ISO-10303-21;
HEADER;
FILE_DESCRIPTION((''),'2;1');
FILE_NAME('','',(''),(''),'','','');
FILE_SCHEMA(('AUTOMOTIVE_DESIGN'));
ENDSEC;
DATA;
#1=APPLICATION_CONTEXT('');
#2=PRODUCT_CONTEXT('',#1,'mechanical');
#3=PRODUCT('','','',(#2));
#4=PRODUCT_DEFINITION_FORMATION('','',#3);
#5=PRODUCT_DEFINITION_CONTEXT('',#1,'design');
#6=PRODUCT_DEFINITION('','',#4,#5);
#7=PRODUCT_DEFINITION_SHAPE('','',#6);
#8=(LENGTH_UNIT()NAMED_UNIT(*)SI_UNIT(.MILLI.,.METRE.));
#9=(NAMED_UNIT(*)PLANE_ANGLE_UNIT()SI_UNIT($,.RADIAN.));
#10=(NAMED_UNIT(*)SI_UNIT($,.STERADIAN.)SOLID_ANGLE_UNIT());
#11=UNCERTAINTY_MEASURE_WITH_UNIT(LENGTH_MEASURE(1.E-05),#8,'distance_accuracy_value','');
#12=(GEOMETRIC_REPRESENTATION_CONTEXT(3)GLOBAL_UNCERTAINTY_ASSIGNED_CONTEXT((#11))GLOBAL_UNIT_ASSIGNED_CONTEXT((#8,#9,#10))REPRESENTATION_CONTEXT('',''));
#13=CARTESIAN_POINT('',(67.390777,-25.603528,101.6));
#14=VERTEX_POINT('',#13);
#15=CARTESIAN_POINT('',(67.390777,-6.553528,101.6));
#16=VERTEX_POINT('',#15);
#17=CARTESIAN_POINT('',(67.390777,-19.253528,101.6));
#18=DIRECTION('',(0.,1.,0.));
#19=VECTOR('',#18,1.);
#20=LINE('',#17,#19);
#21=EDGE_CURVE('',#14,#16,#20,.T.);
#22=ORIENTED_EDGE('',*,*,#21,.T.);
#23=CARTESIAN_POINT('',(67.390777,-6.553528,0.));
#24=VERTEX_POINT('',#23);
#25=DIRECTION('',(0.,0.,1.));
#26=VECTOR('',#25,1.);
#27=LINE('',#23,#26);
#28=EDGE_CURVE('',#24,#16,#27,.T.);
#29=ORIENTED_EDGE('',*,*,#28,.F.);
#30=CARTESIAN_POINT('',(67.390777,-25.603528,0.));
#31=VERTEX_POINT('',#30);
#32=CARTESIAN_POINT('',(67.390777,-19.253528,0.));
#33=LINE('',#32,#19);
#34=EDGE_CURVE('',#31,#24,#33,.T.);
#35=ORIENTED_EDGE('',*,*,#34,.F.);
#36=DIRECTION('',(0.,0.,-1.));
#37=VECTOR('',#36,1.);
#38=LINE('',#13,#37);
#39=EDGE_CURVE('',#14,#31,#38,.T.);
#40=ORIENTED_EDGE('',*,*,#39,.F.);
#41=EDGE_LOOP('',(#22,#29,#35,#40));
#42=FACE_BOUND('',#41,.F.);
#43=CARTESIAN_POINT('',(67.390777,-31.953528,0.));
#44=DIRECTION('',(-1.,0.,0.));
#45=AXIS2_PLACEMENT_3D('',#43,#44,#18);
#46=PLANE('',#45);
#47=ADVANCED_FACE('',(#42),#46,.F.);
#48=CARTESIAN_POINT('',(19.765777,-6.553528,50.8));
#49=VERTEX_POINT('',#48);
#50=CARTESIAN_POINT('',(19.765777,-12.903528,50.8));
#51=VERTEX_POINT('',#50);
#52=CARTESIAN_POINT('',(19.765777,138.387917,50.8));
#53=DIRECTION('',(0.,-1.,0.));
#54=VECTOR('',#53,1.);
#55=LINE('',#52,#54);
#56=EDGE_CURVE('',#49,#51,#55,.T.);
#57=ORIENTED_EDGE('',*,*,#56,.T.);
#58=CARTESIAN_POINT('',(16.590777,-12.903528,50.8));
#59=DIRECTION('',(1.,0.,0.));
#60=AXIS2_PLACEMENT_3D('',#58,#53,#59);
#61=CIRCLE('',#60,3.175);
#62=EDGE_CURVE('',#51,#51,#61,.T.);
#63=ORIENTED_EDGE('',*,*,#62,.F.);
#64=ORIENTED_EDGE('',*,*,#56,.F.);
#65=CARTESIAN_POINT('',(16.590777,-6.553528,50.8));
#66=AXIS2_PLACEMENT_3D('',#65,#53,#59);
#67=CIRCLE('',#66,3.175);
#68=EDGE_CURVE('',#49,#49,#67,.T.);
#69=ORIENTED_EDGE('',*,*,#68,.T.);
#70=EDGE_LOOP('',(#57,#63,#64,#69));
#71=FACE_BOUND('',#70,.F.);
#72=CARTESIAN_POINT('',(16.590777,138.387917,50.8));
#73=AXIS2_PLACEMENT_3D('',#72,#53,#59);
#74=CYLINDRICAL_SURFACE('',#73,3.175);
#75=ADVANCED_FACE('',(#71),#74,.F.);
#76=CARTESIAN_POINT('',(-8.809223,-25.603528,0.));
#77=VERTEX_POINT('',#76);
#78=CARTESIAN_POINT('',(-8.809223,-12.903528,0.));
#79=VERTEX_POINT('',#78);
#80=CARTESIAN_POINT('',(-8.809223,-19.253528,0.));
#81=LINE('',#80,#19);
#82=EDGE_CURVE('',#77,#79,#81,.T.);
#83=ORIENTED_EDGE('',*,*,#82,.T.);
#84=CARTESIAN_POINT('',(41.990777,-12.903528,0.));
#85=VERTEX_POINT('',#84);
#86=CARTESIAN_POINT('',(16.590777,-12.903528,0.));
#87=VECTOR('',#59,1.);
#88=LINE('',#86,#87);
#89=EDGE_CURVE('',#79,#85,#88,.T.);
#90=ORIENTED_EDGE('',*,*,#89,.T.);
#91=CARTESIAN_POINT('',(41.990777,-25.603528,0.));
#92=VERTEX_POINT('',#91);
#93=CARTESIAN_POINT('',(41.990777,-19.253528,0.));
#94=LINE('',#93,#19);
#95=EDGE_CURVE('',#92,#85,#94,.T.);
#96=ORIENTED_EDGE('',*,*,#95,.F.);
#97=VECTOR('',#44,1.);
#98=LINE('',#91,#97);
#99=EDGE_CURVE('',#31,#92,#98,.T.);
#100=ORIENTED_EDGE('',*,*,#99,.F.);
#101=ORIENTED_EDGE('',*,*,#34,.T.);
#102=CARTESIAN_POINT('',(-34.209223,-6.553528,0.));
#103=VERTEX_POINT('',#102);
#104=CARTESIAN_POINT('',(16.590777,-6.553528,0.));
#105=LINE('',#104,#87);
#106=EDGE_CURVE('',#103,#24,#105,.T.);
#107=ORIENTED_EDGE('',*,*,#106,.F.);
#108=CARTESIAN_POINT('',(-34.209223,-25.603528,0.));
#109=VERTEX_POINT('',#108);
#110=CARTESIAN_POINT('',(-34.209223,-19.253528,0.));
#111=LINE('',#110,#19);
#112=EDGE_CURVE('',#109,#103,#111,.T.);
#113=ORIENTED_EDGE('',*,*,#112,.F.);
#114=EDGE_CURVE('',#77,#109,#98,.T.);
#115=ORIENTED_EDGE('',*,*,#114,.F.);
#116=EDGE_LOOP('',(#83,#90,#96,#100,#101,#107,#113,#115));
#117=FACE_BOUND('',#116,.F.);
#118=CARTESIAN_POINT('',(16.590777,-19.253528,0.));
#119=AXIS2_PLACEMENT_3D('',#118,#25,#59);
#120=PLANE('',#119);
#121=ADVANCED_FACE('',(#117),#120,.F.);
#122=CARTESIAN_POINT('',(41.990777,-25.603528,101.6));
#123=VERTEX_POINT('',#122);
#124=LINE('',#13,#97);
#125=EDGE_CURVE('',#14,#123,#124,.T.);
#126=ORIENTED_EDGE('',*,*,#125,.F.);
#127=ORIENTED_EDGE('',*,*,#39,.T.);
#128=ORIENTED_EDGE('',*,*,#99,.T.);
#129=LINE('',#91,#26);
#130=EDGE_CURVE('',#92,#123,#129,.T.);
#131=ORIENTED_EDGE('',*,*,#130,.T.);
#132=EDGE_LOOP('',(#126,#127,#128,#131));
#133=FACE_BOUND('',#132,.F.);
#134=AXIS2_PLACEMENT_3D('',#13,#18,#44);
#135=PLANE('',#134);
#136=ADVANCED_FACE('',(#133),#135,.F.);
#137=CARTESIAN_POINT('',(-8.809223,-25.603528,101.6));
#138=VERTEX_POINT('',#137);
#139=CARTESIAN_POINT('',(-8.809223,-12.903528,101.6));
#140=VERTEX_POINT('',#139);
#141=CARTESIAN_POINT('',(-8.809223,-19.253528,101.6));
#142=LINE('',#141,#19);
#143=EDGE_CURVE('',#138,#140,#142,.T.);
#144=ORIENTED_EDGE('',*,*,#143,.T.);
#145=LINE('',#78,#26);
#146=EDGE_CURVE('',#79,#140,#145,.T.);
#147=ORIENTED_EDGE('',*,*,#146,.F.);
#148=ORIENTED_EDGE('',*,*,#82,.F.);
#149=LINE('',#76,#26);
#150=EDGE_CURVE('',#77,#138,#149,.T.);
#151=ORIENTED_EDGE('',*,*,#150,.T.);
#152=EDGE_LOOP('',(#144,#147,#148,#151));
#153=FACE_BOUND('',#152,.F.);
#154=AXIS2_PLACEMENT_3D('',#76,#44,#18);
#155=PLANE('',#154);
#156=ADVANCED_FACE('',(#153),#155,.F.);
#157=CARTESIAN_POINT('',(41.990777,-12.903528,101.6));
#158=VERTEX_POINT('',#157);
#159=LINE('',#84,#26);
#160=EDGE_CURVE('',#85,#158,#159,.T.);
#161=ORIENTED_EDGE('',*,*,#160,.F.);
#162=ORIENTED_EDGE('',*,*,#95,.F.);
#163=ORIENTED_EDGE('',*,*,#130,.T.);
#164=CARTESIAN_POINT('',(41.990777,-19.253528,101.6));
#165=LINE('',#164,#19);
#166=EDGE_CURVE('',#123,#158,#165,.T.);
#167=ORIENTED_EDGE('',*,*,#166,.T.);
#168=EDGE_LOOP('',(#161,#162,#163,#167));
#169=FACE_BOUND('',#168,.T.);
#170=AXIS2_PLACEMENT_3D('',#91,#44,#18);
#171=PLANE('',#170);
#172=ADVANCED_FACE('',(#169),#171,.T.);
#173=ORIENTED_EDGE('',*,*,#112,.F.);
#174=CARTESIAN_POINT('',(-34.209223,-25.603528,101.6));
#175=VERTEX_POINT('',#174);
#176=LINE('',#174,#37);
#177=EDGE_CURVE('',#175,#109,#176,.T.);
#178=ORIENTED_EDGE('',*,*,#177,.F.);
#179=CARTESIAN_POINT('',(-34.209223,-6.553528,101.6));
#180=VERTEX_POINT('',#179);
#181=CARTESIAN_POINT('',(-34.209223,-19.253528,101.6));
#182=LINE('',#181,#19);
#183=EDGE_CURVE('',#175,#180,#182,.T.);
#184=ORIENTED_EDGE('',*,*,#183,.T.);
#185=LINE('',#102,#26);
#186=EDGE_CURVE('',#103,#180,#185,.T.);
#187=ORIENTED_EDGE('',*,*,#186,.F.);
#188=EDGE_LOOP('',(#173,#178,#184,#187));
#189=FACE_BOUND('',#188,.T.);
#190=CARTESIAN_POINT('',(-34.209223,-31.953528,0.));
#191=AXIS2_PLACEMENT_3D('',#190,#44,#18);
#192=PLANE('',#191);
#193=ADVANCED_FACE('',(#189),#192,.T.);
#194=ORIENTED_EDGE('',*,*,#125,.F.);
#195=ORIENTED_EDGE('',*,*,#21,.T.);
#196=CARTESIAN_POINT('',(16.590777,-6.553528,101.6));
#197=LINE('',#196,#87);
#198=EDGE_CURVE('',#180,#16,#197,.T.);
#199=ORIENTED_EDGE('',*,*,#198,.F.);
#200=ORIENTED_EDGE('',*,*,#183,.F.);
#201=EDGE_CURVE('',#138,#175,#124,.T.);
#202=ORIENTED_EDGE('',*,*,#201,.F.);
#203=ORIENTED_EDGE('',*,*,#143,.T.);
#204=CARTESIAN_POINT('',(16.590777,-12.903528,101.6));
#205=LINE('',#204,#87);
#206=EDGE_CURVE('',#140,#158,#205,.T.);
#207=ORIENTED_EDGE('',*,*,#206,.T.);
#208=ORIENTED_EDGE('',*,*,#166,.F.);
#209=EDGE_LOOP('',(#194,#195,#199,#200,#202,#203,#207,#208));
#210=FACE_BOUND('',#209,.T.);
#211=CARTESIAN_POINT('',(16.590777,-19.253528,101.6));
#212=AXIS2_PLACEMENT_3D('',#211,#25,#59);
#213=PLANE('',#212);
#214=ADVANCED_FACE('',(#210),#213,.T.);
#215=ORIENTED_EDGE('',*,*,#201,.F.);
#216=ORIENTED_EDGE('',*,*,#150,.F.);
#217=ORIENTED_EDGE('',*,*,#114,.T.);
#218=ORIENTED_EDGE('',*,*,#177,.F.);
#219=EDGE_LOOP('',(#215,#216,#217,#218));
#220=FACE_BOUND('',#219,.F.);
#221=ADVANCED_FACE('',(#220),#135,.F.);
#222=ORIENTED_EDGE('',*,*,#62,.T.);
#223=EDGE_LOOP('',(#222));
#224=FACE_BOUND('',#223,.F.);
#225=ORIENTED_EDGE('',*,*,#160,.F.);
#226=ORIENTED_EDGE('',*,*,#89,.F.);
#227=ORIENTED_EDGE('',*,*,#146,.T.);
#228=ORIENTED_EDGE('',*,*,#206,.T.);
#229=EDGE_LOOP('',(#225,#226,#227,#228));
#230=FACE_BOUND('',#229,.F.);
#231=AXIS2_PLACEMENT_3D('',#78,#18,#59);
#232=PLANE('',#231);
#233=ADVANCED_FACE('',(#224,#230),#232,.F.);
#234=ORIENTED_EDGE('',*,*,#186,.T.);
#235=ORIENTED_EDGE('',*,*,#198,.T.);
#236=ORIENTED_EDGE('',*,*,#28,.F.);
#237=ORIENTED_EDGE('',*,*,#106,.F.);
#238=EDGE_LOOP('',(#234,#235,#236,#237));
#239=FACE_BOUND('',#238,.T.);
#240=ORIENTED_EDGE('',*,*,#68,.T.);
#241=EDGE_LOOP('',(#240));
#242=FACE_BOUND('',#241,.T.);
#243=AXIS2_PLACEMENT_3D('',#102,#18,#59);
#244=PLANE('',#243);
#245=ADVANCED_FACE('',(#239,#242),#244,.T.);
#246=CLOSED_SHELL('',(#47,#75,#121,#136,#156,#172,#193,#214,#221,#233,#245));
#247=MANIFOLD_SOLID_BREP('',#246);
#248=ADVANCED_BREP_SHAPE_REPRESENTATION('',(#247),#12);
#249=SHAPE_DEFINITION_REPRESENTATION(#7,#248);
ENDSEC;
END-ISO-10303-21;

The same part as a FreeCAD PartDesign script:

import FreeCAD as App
import Part
import Sketcher
from FreeCAD import Vector
Q = App.Units.Quantity

doc = App.newDocument("Part")
body = doc.addObject("PartDesign::Body", "Body")

# Sketch on XY plane
sketch1 = body.newObject("Sketcher::SketchObject", "Sketch")
sketch1.AttachmentSupport = (doc.getObject("XY_Plane"), [""])
sketch1.MapMode = "FlatFace"
sketch1.addGeometry([
    Part.LineSegment(Vector(-34, -7, 0), Vector(-34, -32, 0)),  # 0
    Part.LineSegment(Vector(-34, -32, 0), Vector(67, -32, 0)),  # 1
    Part.LineSegment(Vector(67, -32, 0), Vector(67, -7, 0)),  # 2
    Part.LineSegment(Vector(67, -7, 0), Vector(-34, -7, 0)),  # 3
    Part.LineSegment(Vector(42, -26, 0), Vector(-9, -26, 0)),  # 4
    Part.LineSegment(Vector(-9, -26, 0), Vector(-9, -13, 0)),  # 5
    Part.LineSegment(Vector(-9, -13, 0), Vector(42, -13, 0)),  # 6
    Part.LineSegment(Vector(42, -13, 0), Vector(42, -26, 0)),  # 7
], False)
sketch1.addConstraint([
    Sketcher.Constraint("Coincident", 0, 2, 1, 1),
    Sketcher.Constraint("Coincident", 1, 2, 2, 1),
    Sketcher.Constraint("Coincident", 2, 2, 3, 1),
    Sketcher.Constraint("Coincident", 3, 2, 0, 1),
    Sketcher.Constraint("Coincident", 4, 2, 5, 1),
    Sketcher.Constraint("Coincident", 5, 2, 6, 1),
    Sketcher.Constraint("Coincident", 6, 2, 7, 1),
    Sketcher.Constraint("Coincident", 7, 2, 4, 1),
    Sketcher.Constraint("Vertical", 0),
    Sketcher.Constraint("Horizontal", 1),
    Sketcher.Constraint("Vertical", 2),
    Sketcher.Constraint("Horizontal", 3),
    Sketcher.Constraint("Horizontal", 4),
    Sketcher.Constraint("Vertical", 5),
    Sketcher.Constraint("Horizontal", 6),
    Sketcher.Constraint("Vertical", 7),
    Sketcher.Constraint("DistanceX", 1, 1, 1, 2, Q("4 in")),
    Sketcher.Constraint("DistanceX", 4, 2, 4, 1, Q("2 in")),
    Sketcher.Constraint("DistanceY", 0, 2, 0, 1, Q("1 in")),
    Sketcher.Constraint("DistanceY", 5, 1, 5, 2, Q("0.5 in")),
    Sketcher.Constraint("DistanceX", 0, 2, 4, 2, Q("1 in")),
    Sketcher.Constraint("DistanceY", 0, 2, 4, 2, Q("0.25 in")),
    Sketcher.Constraint("DistanceY", 4, 2, -1, 1, 25.603528),
    Sketcher.Constraint("DistanceX", 0, 2, -1, 1, 34.209223),
])
pad1 = body.newObject("PartDesign::Pad", "Pad")
pad1.Profile = sketch1
pad1.Length = Q("4 in")

# Sketch on XY plane
sketch2 = body.newObject("Sketcher::SketchObject", "Sketch001")
sketch2.AttachmentSupport = (doc.getObject("XY_Plane"), [""])
sketch2.MapMode = "FlatFace"
sketch2.AttachmentOffset = App.Placement(Vector(0, 0, 4 * 25.4), App.Rotation())
sketch2.addGeometry([
    Part.LineSegment(Vector(-34, -26, 0), Vector(-34, -32, 0)),
    Part.LineSegment(Vector(-34, -32, 0), Vector(67, -32, 0)),
    Part.LineSegment(Vector(67, -32, 0), Vector(67, -26, 0)),
    Part.LineSegment(Vector(67, -26, 0), Vector(-34, -26, 0)),
], False)
sketch2.addConstraint([
    Sketcher.Constraint("Coincident", 0, 2, 1, 1),
    Sketcher.Constraint("Coincident", 1, 2, 2, 1),
    Sketcher.Constraint("Coincident", 2, 2, 3, 1),
    Sketcher.Constraint("Coincident", 3, 2, 0, 1),
    Sketcher.Constraint("Vertical", 0),
    Sketcher.Constraint("Horizontal", 1),
    Sketcher.Constraint("Vertical", 2),
    Sketcher.Constraint("Horizontal", 3),
    Sketcher.Constraint("DistanceX", 1, 1, 1, 2, Q("4 in")),
    Sketcher.Constraint("DistanceY", 0, 2, 0, 1, Q("0.25 in")),
    Sketcher.Constraint("DistanceY", 2, 2, -1, 1, 25.603528),
    Sketcher.Constraint("DistanceX", 0, 2, -1, 1, 34.209223),
])
pocket1 = body.newObject("PartDesign::Pocket", "Pocket")
pocket1.Profile = sketch2
pocket1.Type = "ThroughAll"

# Sketch on XZ plane
sketch3 = body.newObject("Sketcher::SketchObject", "Sketch002")
sketch3.AttachmentSupport = (doc.getObject("XZ_Plane"), [""])
sketch3.MapMode = "FlatFace"
sketch3.AttachmentOffset = App.Placement(Vector(0, 0, 6.553528), App.Rotation())
sketch3.addGeometry(Part.Circle(Vector(16.6, 50.8, 0), Vector(0, 0, 1), 3.2), False)
sketch3.addConstraint([
    Sketcher.Constraint("Diameter", 0, Q("0.25 in")),
    Sketcher.Constraint("DistanceY", -1, 1, 0, 3, Q("2 in")),
    Sketcher.Constraint("DistanceX", -1, 1, 0, 3, 16.590777),
])
doc.recompute()
hole = body.newObject("PartDesign::Hole", "Hole")
hole.Profile = sketch3
hole.ThreadType = "None"
hole.Diameter = Q("0.25 in")
hole.DepthType = "ThroughAll"
hole.Reversed = True

doc.recompute()
